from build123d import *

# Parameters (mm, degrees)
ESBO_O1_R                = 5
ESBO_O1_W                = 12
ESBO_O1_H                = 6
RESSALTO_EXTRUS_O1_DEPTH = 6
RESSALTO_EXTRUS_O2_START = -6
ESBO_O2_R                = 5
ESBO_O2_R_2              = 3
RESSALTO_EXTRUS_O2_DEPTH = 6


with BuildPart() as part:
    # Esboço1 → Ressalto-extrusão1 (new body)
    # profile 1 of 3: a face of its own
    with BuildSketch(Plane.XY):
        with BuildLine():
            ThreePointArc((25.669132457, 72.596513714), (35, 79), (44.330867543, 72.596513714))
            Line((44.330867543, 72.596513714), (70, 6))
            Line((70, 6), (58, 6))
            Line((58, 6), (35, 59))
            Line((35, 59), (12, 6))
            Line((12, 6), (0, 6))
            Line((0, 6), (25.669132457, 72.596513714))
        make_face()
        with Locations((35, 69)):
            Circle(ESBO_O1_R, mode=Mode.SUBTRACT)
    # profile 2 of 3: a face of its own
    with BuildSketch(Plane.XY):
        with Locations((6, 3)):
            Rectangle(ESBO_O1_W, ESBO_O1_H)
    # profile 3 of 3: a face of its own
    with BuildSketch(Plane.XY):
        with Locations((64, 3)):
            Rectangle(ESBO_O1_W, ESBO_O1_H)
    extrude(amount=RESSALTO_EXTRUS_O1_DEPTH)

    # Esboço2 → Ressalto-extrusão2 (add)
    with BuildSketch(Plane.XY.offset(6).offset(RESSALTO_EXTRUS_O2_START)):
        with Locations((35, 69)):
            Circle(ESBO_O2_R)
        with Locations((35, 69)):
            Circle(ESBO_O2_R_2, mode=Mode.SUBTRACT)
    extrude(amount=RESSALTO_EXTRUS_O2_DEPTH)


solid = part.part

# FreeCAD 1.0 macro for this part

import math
import FreeCAD as App
import Part
import Sketcher

doc = App.newDocument("Part")
params = doc.addObject("Spreadsheet::Sheet", "Params")
for row, (alias, value) in enumerate([
    ("sketch1_diameter", "10 mm"),
    ("sketch1_radius", "10 mm"),
    ("sketch1_width", "12 mm"),
    ("sketch1_height", "6 mm"),
    ("pad1_length", "6 mm"),
    ("sketch2_diameter", "10 mm"),
    ("sketch2_diameter2", "6 mm"),
    ("pad2_length", "6 mm"),
], start=1):
    params.set(f"A{row}", alias)
    params.set(f"B{row}", "=" + value)
    params.setAlias(f"B{row}", alias)

body = doc.addObject("PartDesign::Body", "Body")

# Sketch on XY plane
sketch1 = body.newObject("Sketcher::SketchObject", "Sketch")
sketch1.AttachmentSupport = (doc.getObject("XY_Plane"), [""])
sketch1.MapMode = "FlatFace"
sketch1.addGeometry([
    Part.ArcOfCircle(Part.Circle(App.Vector(35, 69, 0), App.Vector(0, 0, 1), 10), math.radians(21), math.radians(159)),  # 0
    Part.LineSegment(App.Vector(26, 73, 0), App.Vector(0, 6, 0)),  # 1
    Part.LineSegment(App.Vector(0, 6, 0), App.Vector(0, 0, 0)),  # 2
    Part.LineSegment(App.Vector(0, 0, 0), App.Vector(12, 0, 0)),  # 3
    Part.LineSegment(App.Vector(12, 0, 0), App.Vector(12, 6, 0)),  # 4
    Part.LineSegment(App.Vector(12, 6, 0), App.Vector(35, 59, 0)),  # 5
    Part.LineSegment(App.Vector(35, 59, 0), App.Vector(58, 6, 0)),  # 6
    Part.LineSegment(App.Vector(58, 6, 0), App.Vector(58, 0, 0)),  # 7
    Part.LineSegment(App.Vector(58, 0, 0), App.Vector(70, 0, 0)),  # 8
    Part.LineSegment(App.Vector(70, 0, 0), App.Vector(70, 6, 0)),  # 9
    Part.LineSegment(App.Vector(70, 6, 0), App.Vector(44, 73, 0)),  # 10
    Part.Circle(App.Vector(35, 69, 0), App.Vector(0, 0, 1), 5),  # 11
], False)
sketch1.addConstraint([
    Sketcher.Constraint("Tangent", 0, 2, 1, 1),
    Sketcher.Constraint("Coincident", 1, 2, 2, 1),
    Sketcher.Constraint("Coincident", 2, 2, 3, 1),
    Sketcher.Constraint("Coincident", 3, 2, 4, 1),
    Sketcher.Constraint("Coincident", 4, 2, 5, 1),
    Sketcher.Constraint("Coincident", 5, 2, 6, 1),
    Sketcher.Constraint("Coincident", 6, 2, 7, 1),
    Sketcher.Constraint("Coincident", 7, 2, 8, 1),
    Sketcher.Constraint("Coincident", 8, 2, 9, 1),
    Sketcher.Constraint("Coincident", 9, 2, 10, 1),
    Sketcher.Constraint("Tangent", 10, 2, 0, 1),
    Sketcher.Constraint("Vertical", 2),
    Sketcher.Constraint("Horizontal", 3),
    Sketcher.Constraint("Vertical", 4),
    Sketcher.Constraint("Vertical", 7),
    Sketcher.Constraint("Horizontal", 8),
    Sketcher.Constraint("Vertical", 9),
    Sketcher.Constraint("Coincident", 2, 2, -1, 1),
    Sketcher.Constraint("Coincident", 11, 3, 0, 3),
    Sketcher.Constraint("PointOnObject", 7, 2, -1),
    Sketcher.Constraint("Horizontal", 1, 2, 4, 2),
    Sketcher.Constraint("Horizontal", 4, 2, 6, 2),
    Sketcher.Constraint("Horizontal", 6, 2, 9, 2),
    Sketcher.Constraint("Horizontal", 0, 2, 10, 2),
    Sketcher.Constraint("Vertical", 11, 3, 5, 2),
    Sketcher.Constraint("Equal", 3, 8),
    Sketcher.Constraint("Diameter", 11, 10.0),
    Sketcher.Constraint("Radius", 0, 10.0),
    Sketcher.Constraint("DistanceX", 3, 1, 3, 2, 12.0),
    Sketcher.Constraint("DistanceY", 2, 2, 2, 1, 6.0),
    Sketcher.Constraint("DistanceX", -1, 1, 0, 3, 35.0),
    Sketcher.Constraint("DistanceY", -1, 1, 0, 3, 69.0),
    Sketcher.Constraint("DistanceY", -1, 1, 5, 2, 59.0),
])
sketch1.setExpression("Constraints[26]", "Params.sketch1_diameter")
sketch1.setExpression("Constraints[27]", "Params.sketch1_radius")
sketch1.setExpression("Constraints[28]", "Params.sketch1_width")
sketch1.setExpression("Constraints[29]", "Params.sketch1_height")
pad1 = body.newObject("PartDesign::Pad", "Pad")
pad1.Profile = sketch1
pad1.setExpression("Length", "Params.pad1_length")

# Sketch on XY plane
sketch2 = body.newObject("Sketcher::SketchObject", "Sketch001")
sketch2.AttachmentSupport = (doc.getObject("XY_Plane"), [""])
sketch2.MapMode = "FlatFace"
sketch2.addGeometry([
    Part.Circle(App.Vector(35, 69, 0), App.Vector(0, 0, 1), 5),
    Part.Circle(App.Vector(35, 69, 0), App.Vector(0, 0, 1), 3),
], False)
sketch2.addConstraint([
    Sketcher.Constraint("Coincident", 1, 3, 0, 3),
    Sketcher.Constraint("Diameter", 0, 10.0),
    Sketcher.Constraint("Diameter", 1, 6.0),
    Sketcher.Constraint("DistanceX", -1, 1, 0, 3, 35.0),
    Sketcher.Constraint("DistanceY", -1, 1, 0, 3, 69.0),
])
sketch2.setExpression("Constraints[1]", "Params.sketch2_diameter")
sketch2.setExpression("Constraints[2]", "Params.sketch2_diameter2")
pad2 = body.newObject("PartDesign::Pad", "Pad001")
pad2.Profile = sketch2
pad2.setExpression("Length", "Params.pad2_length")

doc.recompute()
